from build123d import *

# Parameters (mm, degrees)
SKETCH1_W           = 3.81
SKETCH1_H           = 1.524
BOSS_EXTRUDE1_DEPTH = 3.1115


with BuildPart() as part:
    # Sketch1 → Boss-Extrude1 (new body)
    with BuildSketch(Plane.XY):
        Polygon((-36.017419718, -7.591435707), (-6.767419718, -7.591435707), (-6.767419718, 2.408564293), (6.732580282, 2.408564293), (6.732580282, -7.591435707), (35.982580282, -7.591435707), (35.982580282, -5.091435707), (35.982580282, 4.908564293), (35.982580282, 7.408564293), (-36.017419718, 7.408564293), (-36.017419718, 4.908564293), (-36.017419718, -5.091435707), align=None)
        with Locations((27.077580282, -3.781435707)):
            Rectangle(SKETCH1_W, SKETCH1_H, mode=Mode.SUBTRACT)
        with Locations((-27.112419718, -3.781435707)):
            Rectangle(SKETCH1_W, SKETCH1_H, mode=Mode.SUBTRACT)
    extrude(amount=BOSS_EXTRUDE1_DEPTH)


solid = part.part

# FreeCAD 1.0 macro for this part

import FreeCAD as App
import Part
import Sketcher

V = App.Vector
Q = App.Units.Quantity


def add_polygon(sketch, points):
    """Adds a closed chain of lines whose ends are joined by coincident constraints."""
    first, n = sketch.GeometryCount, len(points)
    for a, b in zip(points, points[1:] + points[:1]):
        sketch.addGeometry(Part.LineSegment(App.Vector(*a, 0), App.Vector(*b, 0)), False)
    for i in range(n):
        sketch.addConstraint(Sketcher.Constraint("Coincident", first + i, 2, first + (i + 1) % n, 1))

doc = App.newDocument("Part")
body = doc.addObject("PartDesign::Body", "Body")

# Sketch on XY plane
sketch1 = body.newObject("Sketcher::SketchObject", "Sketch")
sketch1.AttachmentSupport = (doc.getObject("XY_Plane"), [""])
sketch1.MapMode = "FlatFace"
add_polygon(sketch1, [(-36, -7.6), (-6.8, -7.6), (-6.8, 2.4), (6.7, 2.4), (6.7, -7.6), (36, -7.6), (36, 7.4), (-36, 7.4)])  # lines 0-7
add_polygon(sketch1, [(-25.2, -4.5), (-29, -4.5), (-29, -3), (-25.2, -3)])  # lines 8-11
add_polygon(sketch1, [(29, -4.5), (25.2, -4.5), (25.2, -3), (29, -3)])  # lines 12-15
sketch1.addConstraint([
    Sketcher.Constraint("Horizontal", 0),
    Sketcher.Constraint("Vertical", 1),
    Sketcher.Constraint("Horizontal", 2),
    Sketcher.Constraint("Vertical", 3),
    Sketcher.Constraint("Horizontal", 4),
    Sketcher.Constraint("Vertical", 5),
    Sketcher.Constraint("Horizontal", 6),
    Sketcher.Constraint("Vertical", 7),
    Sketcher.Constraint("Horizontal", 8),
    Sketcher.Constraint("Vertical", 9),
    Sketcher.Constraint("Horizontal", 10),
    Sketcher.Constraint("Vertical", 11),
    Sketcher.Constraint("Horizontal", 12),
    Sketcher.Constraint("Vertical", 13),
    Sketcher.Constraint("Horizontal", 14),
    Sketcher.Constraint("Vertical", 15),
    Sketcher.Constraint("Horizontal", 0, 2, 3, 2),
    Sketcher.Constraint("Horizontal", 11, 2, 12, 2),
    Sketcher.Constraint("Horizontal", 10, 2, 13, 2),
    Sketcher.Constraint("Equal", 0, 4),
    Sketcher.Constraint("Equal", 10, 12),
    Sketcher.Constraint("DistanceX", 6, 2, 6, 1, Q("72 mm")),
    Sketcher.Constraint("DistanceY", 1, 1, 1, 2, Q("10 mm")),
    Sketcher.Constraint("DistanceY", 5, 1, 5, 2, Q("15 mm")),
    Sketcher.Constraint("DistanceX", 2, 1, 2, 2, Q("13.5 mm")),
    Sketcher.Constraint("DistanceX", 7, 2, 8, 2, Q("7 mm")),
    Sketcher.Constraint("DistanceX", 14, 2, 4, 2, Q("7 mm")),
    Sketcher.Constraint("DistanceX", 8, 2, 8, 1, Q("3.81 mm")),
    Sketcher.Constraint("DistanceY", 9, 1, 9, 2, Q("1.524 mm")),
    Sketcher.Constraint("DistanceY", 7, 2, 8, 2, Q("3.048 mm")),
    Sketcher.Constraint("DistanceX", 0, 2, -1, 1, Q("6.76742 mm")),
    Sketcher.Constraint("DistanceY", 0, 2, -1, 1, Q("7.591436 mm")),
])
pad1 = body.newObject("PartDesign::Pad", "Pad")
pad1.Profile = sketch1
pad1.Length = 3.1115

doc.recompute()
